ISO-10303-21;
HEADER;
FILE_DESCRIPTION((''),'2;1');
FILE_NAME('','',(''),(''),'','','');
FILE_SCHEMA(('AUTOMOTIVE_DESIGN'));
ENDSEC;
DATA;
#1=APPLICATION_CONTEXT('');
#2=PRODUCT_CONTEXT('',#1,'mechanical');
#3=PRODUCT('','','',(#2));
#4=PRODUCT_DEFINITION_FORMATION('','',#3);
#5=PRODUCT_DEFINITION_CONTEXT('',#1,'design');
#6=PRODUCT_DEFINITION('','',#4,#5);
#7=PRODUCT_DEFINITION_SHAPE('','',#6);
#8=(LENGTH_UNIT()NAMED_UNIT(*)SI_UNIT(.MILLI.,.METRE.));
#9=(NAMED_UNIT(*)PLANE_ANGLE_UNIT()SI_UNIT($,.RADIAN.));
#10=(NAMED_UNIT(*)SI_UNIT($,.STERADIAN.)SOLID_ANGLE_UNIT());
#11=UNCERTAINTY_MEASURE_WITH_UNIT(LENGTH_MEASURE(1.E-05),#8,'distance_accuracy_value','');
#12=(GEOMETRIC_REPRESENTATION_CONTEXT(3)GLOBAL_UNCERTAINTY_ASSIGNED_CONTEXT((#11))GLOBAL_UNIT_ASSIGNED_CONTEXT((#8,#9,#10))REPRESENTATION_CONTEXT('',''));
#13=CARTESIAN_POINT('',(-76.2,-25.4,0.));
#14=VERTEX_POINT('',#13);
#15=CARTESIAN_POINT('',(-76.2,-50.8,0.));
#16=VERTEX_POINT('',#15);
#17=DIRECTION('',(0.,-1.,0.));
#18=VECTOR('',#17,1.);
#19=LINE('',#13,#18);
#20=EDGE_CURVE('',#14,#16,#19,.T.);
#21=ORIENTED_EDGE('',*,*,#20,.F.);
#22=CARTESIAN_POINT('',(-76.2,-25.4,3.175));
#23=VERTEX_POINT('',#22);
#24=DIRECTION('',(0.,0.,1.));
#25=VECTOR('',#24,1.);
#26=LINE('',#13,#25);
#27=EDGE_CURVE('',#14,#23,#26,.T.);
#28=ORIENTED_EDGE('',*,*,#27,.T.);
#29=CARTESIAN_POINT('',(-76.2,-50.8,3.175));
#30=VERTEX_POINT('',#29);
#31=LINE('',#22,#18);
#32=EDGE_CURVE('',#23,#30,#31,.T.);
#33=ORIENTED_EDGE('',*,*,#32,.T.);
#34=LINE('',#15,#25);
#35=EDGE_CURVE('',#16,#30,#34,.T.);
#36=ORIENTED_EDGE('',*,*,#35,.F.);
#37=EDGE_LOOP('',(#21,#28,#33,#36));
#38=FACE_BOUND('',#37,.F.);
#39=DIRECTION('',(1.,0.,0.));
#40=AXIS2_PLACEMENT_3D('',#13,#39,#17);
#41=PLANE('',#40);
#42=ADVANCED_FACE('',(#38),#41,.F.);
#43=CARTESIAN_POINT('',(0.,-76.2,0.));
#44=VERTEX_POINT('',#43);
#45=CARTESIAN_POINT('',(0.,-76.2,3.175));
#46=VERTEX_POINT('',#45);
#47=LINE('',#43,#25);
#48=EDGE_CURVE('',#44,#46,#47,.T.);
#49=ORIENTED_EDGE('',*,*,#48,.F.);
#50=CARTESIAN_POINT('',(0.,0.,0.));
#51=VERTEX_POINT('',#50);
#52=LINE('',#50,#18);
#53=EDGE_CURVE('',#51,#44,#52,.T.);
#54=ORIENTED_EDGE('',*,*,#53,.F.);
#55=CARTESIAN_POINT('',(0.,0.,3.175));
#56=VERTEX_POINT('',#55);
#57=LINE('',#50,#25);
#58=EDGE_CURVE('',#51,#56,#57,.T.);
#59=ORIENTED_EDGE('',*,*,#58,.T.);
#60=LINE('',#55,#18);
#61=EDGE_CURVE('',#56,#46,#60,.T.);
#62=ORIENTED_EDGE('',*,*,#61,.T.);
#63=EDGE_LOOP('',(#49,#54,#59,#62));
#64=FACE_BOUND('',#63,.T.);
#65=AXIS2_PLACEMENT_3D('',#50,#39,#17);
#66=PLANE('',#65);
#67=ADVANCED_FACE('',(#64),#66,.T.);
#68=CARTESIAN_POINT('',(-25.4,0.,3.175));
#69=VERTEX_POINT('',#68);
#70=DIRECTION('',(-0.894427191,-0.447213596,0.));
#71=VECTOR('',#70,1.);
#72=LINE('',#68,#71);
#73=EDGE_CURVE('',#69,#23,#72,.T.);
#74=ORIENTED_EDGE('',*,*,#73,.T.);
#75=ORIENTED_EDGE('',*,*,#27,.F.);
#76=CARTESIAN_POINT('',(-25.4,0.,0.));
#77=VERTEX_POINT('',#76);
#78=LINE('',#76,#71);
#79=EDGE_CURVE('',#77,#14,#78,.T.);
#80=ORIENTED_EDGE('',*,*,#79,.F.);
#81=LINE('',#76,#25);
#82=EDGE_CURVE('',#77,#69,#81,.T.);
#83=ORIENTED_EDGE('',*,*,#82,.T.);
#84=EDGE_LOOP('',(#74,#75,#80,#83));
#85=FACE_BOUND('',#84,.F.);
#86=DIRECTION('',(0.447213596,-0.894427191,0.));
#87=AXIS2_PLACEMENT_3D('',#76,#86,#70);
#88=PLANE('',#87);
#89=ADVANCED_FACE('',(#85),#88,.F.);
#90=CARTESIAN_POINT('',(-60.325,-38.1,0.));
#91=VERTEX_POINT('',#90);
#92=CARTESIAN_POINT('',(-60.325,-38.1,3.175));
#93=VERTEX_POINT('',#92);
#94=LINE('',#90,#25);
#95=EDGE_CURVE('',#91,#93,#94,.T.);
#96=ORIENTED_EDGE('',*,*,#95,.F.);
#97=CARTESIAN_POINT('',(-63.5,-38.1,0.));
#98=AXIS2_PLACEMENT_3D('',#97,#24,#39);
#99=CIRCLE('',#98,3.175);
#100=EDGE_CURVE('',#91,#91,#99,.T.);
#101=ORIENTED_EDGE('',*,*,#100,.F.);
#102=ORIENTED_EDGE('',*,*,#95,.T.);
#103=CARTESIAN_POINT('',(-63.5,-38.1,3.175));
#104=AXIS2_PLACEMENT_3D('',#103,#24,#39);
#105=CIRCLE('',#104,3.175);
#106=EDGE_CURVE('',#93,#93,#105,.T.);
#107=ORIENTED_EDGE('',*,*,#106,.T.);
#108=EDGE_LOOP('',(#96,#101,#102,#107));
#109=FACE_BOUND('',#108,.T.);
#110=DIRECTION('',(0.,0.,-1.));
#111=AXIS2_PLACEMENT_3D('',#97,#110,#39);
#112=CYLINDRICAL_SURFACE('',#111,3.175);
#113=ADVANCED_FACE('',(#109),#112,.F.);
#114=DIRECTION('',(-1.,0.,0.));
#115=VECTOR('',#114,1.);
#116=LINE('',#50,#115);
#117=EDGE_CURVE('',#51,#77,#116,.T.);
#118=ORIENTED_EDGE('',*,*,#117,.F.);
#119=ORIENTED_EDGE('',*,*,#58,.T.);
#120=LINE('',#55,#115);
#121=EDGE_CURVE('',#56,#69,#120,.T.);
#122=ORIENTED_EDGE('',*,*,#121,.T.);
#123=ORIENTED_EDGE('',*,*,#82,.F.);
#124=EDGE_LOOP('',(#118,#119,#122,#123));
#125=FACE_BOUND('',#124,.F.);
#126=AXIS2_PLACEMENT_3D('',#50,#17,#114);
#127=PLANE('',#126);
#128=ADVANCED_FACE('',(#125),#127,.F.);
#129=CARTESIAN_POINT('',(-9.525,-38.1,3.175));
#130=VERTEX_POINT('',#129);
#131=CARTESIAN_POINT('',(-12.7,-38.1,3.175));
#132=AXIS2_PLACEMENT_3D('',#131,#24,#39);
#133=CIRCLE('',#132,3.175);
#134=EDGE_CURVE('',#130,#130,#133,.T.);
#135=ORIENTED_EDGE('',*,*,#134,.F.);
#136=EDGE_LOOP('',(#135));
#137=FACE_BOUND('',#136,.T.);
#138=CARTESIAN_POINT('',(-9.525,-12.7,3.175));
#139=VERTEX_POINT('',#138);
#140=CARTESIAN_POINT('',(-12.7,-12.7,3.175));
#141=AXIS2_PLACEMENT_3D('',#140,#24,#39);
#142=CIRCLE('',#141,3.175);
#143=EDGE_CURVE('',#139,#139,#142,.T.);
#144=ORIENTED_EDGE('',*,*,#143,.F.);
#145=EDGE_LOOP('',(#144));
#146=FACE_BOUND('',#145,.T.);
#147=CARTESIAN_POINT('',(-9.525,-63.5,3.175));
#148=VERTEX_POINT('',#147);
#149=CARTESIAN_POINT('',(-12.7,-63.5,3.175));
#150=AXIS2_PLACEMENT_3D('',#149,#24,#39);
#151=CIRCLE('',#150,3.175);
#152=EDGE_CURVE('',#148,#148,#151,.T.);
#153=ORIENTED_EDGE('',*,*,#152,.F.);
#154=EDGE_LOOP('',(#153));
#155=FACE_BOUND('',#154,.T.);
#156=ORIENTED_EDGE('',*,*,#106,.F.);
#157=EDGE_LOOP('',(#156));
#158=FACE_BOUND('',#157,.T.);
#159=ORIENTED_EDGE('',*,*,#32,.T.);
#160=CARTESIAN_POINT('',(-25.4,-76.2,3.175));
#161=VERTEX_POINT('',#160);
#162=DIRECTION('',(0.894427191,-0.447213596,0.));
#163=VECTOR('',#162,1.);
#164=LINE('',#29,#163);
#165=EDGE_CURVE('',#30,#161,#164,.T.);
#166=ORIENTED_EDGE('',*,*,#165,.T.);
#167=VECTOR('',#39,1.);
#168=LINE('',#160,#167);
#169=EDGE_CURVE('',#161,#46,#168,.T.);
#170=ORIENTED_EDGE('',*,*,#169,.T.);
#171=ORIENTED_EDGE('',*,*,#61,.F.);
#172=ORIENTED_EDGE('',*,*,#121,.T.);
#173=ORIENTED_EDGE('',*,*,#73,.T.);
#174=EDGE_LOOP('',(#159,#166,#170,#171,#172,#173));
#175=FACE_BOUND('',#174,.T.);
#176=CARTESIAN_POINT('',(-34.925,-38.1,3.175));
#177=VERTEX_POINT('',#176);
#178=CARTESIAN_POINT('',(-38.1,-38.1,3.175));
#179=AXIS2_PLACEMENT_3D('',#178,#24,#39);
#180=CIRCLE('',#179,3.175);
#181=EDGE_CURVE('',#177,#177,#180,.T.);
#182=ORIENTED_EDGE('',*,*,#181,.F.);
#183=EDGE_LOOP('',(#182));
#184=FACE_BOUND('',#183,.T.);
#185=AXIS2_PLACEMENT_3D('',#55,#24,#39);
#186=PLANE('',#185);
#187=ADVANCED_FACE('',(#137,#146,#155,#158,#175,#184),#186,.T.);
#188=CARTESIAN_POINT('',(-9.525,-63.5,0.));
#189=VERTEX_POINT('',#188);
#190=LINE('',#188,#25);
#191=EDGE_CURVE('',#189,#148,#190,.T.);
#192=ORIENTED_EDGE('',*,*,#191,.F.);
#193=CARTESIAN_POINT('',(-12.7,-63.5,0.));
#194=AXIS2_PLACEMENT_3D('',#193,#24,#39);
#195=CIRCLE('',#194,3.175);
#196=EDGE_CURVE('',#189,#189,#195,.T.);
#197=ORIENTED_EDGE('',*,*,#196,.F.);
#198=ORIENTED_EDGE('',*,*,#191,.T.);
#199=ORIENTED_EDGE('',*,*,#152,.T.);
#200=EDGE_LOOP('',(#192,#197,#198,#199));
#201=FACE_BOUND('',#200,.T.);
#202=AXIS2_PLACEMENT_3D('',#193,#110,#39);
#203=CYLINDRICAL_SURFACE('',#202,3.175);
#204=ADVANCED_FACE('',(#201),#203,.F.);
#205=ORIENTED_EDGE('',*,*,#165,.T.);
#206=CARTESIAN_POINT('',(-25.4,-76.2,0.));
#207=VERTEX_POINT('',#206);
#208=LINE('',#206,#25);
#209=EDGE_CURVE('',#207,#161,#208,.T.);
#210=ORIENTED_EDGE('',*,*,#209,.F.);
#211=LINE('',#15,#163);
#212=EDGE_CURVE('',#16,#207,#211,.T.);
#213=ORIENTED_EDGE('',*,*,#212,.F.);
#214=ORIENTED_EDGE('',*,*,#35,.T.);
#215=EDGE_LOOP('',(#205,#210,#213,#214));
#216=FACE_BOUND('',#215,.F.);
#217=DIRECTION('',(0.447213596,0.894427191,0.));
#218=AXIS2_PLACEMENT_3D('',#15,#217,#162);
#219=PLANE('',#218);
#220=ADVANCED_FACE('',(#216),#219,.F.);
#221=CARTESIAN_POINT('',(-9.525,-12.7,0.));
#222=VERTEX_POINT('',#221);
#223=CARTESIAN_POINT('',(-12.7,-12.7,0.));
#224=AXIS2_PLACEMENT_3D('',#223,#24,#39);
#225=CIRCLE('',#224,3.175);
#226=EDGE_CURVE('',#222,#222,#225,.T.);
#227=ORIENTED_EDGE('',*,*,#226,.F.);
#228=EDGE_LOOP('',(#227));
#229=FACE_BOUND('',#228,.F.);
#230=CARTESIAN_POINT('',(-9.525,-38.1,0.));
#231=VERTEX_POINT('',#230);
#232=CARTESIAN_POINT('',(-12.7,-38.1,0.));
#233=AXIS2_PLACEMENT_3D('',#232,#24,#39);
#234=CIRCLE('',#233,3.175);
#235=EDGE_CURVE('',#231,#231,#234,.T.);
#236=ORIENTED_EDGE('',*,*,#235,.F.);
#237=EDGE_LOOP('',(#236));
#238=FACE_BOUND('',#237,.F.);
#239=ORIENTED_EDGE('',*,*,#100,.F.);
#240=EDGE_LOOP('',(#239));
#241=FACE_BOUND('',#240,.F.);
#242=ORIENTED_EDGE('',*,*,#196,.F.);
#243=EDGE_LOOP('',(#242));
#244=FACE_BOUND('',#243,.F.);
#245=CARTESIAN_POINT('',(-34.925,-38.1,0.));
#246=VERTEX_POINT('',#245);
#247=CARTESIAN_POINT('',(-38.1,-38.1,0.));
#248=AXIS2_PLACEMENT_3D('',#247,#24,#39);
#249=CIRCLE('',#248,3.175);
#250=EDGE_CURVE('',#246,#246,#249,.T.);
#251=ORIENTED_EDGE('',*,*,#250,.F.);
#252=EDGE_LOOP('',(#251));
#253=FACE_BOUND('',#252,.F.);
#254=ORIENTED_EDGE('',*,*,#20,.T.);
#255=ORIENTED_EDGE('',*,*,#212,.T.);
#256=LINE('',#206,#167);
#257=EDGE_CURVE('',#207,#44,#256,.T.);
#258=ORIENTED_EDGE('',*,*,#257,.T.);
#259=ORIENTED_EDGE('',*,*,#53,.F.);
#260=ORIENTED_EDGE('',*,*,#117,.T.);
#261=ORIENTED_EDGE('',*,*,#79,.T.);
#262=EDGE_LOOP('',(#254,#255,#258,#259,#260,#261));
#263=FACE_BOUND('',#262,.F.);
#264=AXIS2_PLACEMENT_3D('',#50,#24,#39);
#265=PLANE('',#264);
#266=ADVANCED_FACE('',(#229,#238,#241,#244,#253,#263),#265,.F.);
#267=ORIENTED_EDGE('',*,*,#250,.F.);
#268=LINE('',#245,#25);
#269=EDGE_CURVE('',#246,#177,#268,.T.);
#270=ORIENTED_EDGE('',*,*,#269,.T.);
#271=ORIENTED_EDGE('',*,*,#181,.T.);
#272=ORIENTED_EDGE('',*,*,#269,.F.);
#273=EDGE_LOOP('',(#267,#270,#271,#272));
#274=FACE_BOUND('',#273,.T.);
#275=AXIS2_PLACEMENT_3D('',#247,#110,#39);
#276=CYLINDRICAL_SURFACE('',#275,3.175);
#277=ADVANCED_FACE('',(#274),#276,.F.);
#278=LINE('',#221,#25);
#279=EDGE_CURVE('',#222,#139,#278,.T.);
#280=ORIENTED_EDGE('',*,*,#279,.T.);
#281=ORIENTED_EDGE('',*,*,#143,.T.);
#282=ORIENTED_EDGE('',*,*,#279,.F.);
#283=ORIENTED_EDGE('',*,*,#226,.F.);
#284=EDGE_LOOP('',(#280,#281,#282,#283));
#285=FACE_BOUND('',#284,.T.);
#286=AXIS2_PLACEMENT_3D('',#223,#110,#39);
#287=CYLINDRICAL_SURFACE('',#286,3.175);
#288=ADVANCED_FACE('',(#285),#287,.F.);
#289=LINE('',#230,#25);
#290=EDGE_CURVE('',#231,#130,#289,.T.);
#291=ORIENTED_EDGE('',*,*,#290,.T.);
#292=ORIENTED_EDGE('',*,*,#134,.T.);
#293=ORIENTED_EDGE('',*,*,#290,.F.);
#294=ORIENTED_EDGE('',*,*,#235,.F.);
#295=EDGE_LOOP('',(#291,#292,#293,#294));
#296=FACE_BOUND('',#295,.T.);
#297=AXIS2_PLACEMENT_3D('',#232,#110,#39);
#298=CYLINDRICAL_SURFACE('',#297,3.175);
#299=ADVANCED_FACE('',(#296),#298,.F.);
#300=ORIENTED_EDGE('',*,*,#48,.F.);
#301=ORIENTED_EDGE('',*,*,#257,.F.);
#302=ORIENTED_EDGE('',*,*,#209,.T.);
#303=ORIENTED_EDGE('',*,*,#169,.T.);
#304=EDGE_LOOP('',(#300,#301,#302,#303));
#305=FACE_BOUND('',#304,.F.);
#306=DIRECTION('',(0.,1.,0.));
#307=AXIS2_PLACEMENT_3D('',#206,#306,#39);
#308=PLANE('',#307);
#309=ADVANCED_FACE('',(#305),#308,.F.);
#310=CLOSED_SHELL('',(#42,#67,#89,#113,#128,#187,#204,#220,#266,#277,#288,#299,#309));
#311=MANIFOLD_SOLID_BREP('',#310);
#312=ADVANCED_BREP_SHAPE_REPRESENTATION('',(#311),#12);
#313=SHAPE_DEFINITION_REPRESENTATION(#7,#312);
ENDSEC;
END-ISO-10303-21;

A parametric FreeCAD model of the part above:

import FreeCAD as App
import Part
import Sketcher
from FreeCAD import Vector
Q = App.Units.Quantity


def add_polygon(sketch, points):
    """Adds a closed chain of lines whose ends are joined by coincident constraints."""
    first, n = sketch.GeometryCount, len(points)
    for a, b in zip(points, points[1:] + points[:1]):
        sketch.addGeometry(Part.LineSegment(App.Vector(*a, 0), App.Vector(*b, 0)), False)
    for i in range(n):
        sketch.addConstraint(Sketcher.Constraint("Coincident", first + i, 2, first + (i + 1) % n, 1))

doc = App.newDocument("Part")
params = doc.addObject("Spreadsheet::Sheet", "Params")
for row, (alias, value) in enumerate([
    ("sketch1_diameter", "0.25 in"),
    ("sketch1_width", "1 in"),
    ("sketch1_height", "3 in"),
    ("pad1_length", "0.125 in"),
], start=1):
    params.set(f"A{row}", alias)
    params.set(f"B{row}", "=" + value)
    params.setAlias(f"B{row}", alias)

body = doc.addObject("PartDesign::Body", "Body")

sketch1 = body.newObject("Sketcher::SketchObject", "Sketch")
sketch1.AttachmentSupport = (doc.getObject("XY_Plane"), [""])
sketch1.MapMode = "FlatFace"
add_polygon(sketch1, [(0, -76.2), (0, 0), (-25.4, 0), (-76.2, -25.4), (-76.2, -50.8), (-25.4, -76.2)])
sketch1.addGeometry(Part.Circle(Vector(-12.7, -63.5, 0), Vector(0, 0, 1), 3.175), False)
sketch1.addGeometry(Part.Circle(Vector(-63.5, -38.1, 0), Vector(0, 0, 1), 3.175), False)
sketch1.addGeometry(Part.Circle(Vector(-38.1, -38.1, 0), Vector(0, 0, 1), 3.175), False)
sketch1.addGeometry(Part.Circle(Vector(-12.7, -38.1, 0), Vector(0, 0, 1), 3.175), False)
sketch1.addGeometry(Part.Circle(Vector(-12.7, -12.7, 0), Vector(0, 0, 1), 3.175), False)
sketch1.addConstraint([
    Sketcher.Constraint("Vertical", 0),
    Sketcher.Constraint("Horizontal", 1),
    Sketcher.Constraint("Vertical", 3),
    Sketcher.Constraint("Horizontal", 5),
    Sketcher.Constraint("Coincident", 0, 2, -1, 1),
    Sketcher.Constraint("Equal", 6, 7),
    Sketcher.Constraint("Equal", 7, 8),
    Sketcher.Constraint("Equal", 8, 9),
    Sketcher.Constraint("Equal", 9, 10),
    Sketcher.Constraint("Horizontal", 7, 3, 8, 3),
    Sketcher.Constraint("Horizontal", 8, 3, 9, 3),
    Sketcher.Constraint("Vertical", 6, 3, 9, 3),
    Sketcher.Constraint("Vertical", 9, 3, 10, 3),
    Sketcher.Constraint("Vertical", 1, 2, 4, 2),
    Sketcher.Constraint("Equal", 5, 3),
    Sketcher.Constraint("Equal", 2, 4),
    Sketcher.Constraint("Diameter", 6, Q("0.25 in")),
    Sketcher.Constraint("DistanceX", 1, 2, 1, 1, Q("1 in")),
    Sketcher.Constraint("DistanceY", 0, 1, 0, 2, Q("3 in")),
    Sketcher.Constraint("DistanceX", 2, 2, -1, 1, Q("3 in")),
    Sketcher.Constraint("DistanceY", 6, 3, 7, 3, Q("1 in")),
    Sketcher.Constraint("DistanceX", 7, 3, 8, 3, Q("1 in")),
    Sketcher.Constraint("DistanceX", 8, 3, 6, 3, Q("1 in")),
    Sketcher.Constraint("DistanceY", 9, 3, 10, 3, Q("1 in")),
    Sketcher.Constraint("DistanceX", 6, 3, -1, 1, Q("0.5 in")),
    Sketcher.Constraint("DistanceY", 7, 3, -1, 1, Q("1.5 in")),
])
sketch1.setExpression("Constraints[22]", "Params.sketch1_diameter")
sketch1.setExpression("Constraints[23]", "Params.sketch1_width")
sketch1.setExpression("Constraints[24]", "Params.sketch1_height")
pad1 = body.newObject("PartDesign::Pad", "Pad")
pad1.Profile = sketch1
pad1.setExpression("Length", "Params.pad1_length")

doc.recompute()
